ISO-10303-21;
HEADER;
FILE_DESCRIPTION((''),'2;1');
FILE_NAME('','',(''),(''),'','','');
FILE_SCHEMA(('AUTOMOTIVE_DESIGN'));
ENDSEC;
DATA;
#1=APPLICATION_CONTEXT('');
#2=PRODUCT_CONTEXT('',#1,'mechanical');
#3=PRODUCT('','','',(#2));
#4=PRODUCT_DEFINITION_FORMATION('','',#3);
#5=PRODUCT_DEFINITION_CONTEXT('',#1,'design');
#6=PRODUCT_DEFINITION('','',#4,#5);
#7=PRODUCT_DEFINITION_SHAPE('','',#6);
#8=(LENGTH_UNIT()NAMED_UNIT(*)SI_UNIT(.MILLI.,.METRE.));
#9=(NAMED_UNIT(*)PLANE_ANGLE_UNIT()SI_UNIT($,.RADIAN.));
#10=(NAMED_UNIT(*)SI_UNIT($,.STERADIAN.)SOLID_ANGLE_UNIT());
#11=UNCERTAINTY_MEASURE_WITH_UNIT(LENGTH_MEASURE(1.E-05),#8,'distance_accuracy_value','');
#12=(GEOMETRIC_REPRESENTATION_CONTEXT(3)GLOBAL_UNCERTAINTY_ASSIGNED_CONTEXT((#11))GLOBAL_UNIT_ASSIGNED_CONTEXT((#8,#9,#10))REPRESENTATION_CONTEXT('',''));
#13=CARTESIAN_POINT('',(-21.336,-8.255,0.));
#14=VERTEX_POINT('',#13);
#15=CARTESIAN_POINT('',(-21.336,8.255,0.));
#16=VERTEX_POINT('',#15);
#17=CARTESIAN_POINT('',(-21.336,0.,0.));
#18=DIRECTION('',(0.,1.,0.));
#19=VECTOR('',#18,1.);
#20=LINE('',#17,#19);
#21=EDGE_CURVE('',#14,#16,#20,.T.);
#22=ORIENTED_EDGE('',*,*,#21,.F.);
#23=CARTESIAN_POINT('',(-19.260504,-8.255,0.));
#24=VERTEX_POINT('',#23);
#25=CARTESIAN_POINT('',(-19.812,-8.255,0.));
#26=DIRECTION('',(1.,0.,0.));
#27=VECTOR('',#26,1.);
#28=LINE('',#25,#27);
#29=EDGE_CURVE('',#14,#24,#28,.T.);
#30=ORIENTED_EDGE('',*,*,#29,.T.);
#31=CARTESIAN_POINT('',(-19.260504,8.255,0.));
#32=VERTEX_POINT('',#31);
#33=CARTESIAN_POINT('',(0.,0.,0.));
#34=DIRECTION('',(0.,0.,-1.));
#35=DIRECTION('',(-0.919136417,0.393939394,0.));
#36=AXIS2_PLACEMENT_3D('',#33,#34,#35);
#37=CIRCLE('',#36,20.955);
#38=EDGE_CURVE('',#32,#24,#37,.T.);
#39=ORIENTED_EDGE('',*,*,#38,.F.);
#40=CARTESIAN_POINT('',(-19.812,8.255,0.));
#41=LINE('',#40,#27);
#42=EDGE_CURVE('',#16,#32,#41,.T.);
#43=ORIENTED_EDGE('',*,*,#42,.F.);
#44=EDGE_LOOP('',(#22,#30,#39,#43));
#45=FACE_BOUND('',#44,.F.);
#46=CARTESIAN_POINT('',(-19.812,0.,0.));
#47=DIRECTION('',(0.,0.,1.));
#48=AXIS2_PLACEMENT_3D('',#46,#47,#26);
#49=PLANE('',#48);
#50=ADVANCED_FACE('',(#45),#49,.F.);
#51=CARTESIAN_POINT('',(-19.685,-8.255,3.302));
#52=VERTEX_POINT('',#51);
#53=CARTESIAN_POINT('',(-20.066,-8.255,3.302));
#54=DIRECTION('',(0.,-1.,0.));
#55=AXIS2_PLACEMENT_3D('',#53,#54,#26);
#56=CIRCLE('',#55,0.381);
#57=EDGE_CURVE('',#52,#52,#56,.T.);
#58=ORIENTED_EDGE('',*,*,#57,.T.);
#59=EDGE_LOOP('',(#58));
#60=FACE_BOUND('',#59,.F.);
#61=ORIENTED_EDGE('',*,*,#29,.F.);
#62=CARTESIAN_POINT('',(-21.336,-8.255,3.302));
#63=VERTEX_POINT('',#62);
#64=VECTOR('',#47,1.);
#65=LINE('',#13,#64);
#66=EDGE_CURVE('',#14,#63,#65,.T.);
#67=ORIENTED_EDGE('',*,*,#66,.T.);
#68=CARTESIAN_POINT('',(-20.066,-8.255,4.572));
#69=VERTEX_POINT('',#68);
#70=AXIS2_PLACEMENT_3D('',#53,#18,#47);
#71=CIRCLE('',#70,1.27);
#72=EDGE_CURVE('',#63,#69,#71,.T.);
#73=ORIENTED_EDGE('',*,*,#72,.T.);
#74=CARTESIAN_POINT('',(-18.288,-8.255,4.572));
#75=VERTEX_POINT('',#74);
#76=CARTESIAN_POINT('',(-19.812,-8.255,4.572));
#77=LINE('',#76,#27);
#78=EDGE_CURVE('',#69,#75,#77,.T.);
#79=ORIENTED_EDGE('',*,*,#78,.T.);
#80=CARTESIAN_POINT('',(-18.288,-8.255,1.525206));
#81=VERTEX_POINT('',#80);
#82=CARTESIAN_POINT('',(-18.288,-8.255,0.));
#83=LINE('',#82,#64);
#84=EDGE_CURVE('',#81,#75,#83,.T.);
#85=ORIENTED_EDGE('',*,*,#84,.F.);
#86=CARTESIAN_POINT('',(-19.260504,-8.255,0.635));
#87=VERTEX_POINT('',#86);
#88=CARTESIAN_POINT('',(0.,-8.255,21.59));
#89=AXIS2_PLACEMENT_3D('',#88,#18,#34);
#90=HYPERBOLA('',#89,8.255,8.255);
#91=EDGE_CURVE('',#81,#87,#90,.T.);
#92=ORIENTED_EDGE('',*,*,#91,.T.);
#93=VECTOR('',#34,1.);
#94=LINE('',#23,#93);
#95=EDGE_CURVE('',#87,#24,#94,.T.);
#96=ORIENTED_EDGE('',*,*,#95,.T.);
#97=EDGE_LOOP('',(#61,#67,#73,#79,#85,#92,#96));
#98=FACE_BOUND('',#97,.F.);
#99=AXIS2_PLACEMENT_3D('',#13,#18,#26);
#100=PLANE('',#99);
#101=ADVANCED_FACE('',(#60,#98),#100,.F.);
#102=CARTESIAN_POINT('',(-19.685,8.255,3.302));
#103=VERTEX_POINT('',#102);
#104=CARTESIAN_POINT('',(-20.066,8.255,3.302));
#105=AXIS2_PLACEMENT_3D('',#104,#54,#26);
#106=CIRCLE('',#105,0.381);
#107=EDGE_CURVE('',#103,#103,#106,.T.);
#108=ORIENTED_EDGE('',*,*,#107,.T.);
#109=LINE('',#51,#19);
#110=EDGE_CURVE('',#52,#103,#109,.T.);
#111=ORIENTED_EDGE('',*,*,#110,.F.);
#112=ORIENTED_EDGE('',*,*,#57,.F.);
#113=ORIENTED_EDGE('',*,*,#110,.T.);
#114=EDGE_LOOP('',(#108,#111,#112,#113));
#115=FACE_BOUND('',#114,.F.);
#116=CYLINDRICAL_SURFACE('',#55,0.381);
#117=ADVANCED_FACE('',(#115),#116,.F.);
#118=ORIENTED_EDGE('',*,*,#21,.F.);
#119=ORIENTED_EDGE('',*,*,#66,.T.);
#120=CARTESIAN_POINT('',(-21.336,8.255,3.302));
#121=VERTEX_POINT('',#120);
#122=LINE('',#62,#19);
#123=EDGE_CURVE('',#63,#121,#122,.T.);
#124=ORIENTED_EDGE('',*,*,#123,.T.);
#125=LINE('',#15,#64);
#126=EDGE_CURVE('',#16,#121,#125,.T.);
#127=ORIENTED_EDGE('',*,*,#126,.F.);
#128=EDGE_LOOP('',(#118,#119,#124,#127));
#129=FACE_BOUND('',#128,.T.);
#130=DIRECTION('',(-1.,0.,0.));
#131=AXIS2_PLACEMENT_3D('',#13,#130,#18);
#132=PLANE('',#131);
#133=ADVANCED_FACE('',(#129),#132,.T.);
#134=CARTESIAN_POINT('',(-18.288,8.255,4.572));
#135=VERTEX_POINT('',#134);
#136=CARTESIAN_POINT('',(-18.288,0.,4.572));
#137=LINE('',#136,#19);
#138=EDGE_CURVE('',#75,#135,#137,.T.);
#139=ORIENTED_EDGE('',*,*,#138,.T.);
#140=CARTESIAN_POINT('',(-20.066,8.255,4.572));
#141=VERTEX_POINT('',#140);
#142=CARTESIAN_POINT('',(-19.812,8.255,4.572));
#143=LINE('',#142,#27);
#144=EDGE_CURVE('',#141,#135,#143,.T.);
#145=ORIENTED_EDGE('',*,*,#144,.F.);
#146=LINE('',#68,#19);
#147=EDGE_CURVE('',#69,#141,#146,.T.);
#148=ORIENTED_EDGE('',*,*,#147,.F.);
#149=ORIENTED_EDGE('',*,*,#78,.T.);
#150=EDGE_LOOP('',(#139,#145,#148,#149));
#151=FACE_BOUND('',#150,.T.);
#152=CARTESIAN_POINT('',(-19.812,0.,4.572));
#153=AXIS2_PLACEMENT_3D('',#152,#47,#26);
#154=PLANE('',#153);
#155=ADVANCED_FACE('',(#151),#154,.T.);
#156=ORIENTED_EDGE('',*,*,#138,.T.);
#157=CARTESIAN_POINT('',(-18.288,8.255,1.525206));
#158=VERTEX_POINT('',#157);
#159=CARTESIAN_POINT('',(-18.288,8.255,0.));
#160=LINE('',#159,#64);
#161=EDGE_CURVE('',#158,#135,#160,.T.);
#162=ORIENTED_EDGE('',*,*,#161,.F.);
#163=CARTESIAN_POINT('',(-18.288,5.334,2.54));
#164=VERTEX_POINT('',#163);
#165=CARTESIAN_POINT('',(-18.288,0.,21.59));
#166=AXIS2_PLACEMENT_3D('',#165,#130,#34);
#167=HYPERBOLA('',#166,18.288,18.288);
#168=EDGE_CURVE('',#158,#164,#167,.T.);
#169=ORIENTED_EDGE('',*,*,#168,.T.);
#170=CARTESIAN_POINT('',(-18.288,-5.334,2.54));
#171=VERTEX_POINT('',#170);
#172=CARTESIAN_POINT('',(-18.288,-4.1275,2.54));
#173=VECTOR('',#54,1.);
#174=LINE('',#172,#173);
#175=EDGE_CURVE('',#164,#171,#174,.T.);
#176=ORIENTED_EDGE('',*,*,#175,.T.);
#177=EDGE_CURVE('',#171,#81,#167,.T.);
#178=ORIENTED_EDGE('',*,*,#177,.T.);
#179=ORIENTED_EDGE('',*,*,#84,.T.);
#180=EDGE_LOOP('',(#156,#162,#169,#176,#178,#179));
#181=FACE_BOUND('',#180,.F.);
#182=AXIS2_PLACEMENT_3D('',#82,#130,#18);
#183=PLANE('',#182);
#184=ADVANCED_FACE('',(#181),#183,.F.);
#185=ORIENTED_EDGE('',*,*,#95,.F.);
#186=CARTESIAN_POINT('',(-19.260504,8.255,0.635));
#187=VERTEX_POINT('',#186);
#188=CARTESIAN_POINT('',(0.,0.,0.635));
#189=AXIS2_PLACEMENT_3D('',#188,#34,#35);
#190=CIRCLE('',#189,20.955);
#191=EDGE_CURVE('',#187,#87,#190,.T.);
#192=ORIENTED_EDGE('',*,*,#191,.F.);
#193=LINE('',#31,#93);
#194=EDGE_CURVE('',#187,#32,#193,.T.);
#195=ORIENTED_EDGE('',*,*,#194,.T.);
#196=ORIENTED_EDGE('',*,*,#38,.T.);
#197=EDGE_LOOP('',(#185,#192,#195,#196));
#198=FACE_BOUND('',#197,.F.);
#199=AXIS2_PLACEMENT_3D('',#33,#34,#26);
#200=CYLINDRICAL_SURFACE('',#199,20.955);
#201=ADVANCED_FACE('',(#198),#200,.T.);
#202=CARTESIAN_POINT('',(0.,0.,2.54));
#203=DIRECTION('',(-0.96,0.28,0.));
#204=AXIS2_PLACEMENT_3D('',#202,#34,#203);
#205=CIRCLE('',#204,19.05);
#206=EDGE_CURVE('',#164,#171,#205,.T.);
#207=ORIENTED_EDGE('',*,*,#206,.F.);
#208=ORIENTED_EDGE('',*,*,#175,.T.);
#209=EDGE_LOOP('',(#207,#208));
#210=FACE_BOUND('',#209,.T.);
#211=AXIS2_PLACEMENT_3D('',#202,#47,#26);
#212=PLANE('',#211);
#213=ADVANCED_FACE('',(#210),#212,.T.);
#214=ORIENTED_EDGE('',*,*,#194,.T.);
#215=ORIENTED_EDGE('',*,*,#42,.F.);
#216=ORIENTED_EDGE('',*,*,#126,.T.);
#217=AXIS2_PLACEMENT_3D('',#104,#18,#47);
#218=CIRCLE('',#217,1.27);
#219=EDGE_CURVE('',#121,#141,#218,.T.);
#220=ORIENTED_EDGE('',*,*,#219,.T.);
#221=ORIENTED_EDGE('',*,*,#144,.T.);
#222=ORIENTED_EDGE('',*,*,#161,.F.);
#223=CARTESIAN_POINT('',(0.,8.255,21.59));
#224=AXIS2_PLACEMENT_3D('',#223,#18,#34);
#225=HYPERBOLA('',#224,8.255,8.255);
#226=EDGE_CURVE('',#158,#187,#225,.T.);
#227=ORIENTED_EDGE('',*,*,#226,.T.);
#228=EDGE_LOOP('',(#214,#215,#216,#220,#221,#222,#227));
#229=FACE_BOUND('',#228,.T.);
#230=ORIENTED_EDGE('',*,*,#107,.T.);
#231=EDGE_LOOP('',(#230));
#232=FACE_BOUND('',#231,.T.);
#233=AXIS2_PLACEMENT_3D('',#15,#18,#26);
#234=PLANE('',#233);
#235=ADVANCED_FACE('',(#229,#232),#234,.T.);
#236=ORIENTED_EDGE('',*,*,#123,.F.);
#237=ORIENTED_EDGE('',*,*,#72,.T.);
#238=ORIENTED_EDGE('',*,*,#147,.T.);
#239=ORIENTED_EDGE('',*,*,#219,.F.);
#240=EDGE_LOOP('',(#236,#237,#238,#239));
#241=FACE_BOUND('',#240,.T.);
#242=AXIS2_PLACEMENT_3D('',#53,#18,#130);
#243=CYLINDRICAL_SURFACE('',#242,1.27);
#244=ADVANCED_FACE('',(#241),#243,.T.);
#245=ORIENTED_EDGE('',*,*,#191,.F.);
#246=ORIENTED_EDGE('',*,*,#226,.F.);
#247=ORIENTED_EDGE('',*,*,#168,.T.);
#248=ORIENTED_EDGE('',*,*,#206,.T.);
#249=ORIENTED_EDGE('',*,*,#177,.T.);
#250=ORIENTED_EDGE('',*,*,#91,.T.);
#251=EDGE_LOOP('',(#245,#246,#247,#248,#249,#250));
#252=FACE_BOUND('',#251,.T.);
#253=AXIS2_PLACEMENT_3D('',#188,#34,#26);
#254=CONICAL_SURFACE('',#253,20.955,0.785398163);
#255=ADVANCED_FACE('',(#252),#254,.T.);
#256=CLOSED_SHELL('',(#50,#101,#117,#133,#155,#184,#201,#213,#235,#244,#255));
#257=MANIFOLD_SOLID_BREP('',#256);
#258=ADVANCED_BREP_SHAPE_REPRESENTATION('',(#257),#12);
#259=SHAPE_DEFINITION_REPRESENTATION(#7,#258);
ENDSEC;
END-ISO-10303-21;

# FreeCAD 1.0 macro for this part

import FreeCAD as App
import Part
import Sketcher
Q = App.Units.Quantity


def edges_at(feature, points):
    """Names of the edges that pass closest to the given points."""
    edges = feature.Shape.Edges
    near = lambda p: min(range(len(edges)), key=lambda i: edges[i].distToShape(Part.Vertex(*p))[0])
    return sorted({f"Edge{near(p) + 1}" for p in points})

doc = App.newDocument("Part")
body = doc.addObject("PartDesign::Body", "Body")

# Sketch on XY plane
sketch1 = body.newObject("Sketcher::SketchObject", "Sketch")
sketch1.AttachmentSupport = (doc.getObject("XY_Plane"), [""])
sketch1.MapMode = "FlatFace"
sketch1.addGeometry(Part.Circle(App.Vector(0, 0, 0), App.Vector(0, 0, 1), 21), False)
sketch1.addConstraint(Sketcher.Constraint("Coincident", 0, 3, -1, 1))
sketch1.addConstraint(Sketcher.Constraint("Diameter", 0, Q("1.65 in")))
pad1 = body.newObject("PartDesign::Pad", "Pad")
pad1.Profile = sketch1
pad1.Length = Q("0.1 in")
doc.recompute()

chamfer = body.newObject("PartDesign::Chamfer", "Chamfer")
chamfer.Base = (pad1, edges_at(pad1, [(-20.955, 0, 2.54)]))
chamfer.Size = Q("0.075 in")

# Sketch on XY plane
sketch2 = body.newObject("Sketcher::SketchObject", "Sketch001")
sketch2.AttachmentSupport = (doc.getObject("XY_Plane"), [""])
sketch2.MapMode = "FlatFace"
sketch2.addGeometry(Part.LineSegment(App.Vector(-21.3, 8.3, 0), App.Vector(-21.3, -8.3, 0)), False)
sketch2.addGeometry(Part.LineSegment(App.Vector(-21.3, -8.3, 0), App.Vector(-18.3, -8.3, 0)), False)
sketch2.addGeometry(Part.LineSegment(App.Vector(-18.3, -8.3, 0), App.Vector(-18.3, 8.3, 0)), False)
sketch2.addGeometry(Part.LineSegment(App.Vector(-18.3, 8.3, 0), App.Vector(-21.3, 8.3, 0)), False)
sketch2.addConstraint(Sketcher.Constraint("Coincident", 0, 2, 1, 1))
sketch2.addConstraint(Sketcher.Constraint("Coincident", 1, 2, 2, 1))
sketch2.addConstraint(Sketcher.Constraint("Coincident", 2, 2, 3, 1))
sketch2.addConstraint(Sketcher.Constraint("Coincident", 3, 2, 0, 1))
sketch2.addConstraint(Sketcher.Constraint("Vertical", 0))
sketch2.addConstraint(Sketcher.Constraint("Horizontal", 1))
sketch2.addConstraint(Sketcher.Constraint("Vertical", 2))
sketch2.addConstraint(Sketcher.Constraint("Horizontal", 3))
sketch2.addConstraint(Sketcher.Constraint("DistanceX", 1, 1, 1, 2, Q("0.12 in")))
sketch2.addConstraint(Sketcher.Constraint("DistanceY", 0, 2, 0, 1, Q("0.65 in")))
sketch2.addConstraint(Sketcher.Constraint("DistanceX", 0, 2, -1, 1, Q("0.84 in")))
sketch2.addConstraint(Sketcher.Constraint("DistanceY", 0, 2, -1, 1, Q("0.325 in")))
pad2 = body.newObject("PartDesign::Pad", "Pad001")
pad2.Profile = sketch2
pad2.Length = Q("0.18 in")
doc.recompute()

fillet = body.newObject("PartDesign::Fillet", "Fillet")
fillet.Base = (pad2, edges_at(pad2, [(-21.336, 0, 4.572)]))
fillet.Radius = Q("0.05 in")

# Sketch on XZ plane
sketch3 = body.newObject("Sketcher::SketchObject", "Sketch002")
sketch3.AttachmentSupport = (doc.getObject("XZ_Plane"), [""])
sketch3.MapMode = "FlatFace"
sketch3.AttachmentOffset = App.Placement(App.Vector(0, 0, 0.325 * 25.4), App.Rotation())
sketch3.addGeometry(Part.Circle(App.Vector(-20.07, 3.3, 0), App.Vector(0, 0, 1), 0.38), False)
sketch3.addConstraint(Sketcher.Constraint("Diameter", 0, Q("0.03 in")))
sketch3.addConstraint(Sketcher.Constraint("DistanceX", 0, 3, -1, 1, Q("0.79 in")))
sketch3.addConstraint(Sketcher.Constraint("DistanceY", -1, 1, 0, 3, Q("0.13 in")))
pocket1 = body.newObject("PartDesign::Pocket", "Pocket")
pocket1.Profile = sketch3
pocket1.Length = Q("1 in")

doc.recompute()
